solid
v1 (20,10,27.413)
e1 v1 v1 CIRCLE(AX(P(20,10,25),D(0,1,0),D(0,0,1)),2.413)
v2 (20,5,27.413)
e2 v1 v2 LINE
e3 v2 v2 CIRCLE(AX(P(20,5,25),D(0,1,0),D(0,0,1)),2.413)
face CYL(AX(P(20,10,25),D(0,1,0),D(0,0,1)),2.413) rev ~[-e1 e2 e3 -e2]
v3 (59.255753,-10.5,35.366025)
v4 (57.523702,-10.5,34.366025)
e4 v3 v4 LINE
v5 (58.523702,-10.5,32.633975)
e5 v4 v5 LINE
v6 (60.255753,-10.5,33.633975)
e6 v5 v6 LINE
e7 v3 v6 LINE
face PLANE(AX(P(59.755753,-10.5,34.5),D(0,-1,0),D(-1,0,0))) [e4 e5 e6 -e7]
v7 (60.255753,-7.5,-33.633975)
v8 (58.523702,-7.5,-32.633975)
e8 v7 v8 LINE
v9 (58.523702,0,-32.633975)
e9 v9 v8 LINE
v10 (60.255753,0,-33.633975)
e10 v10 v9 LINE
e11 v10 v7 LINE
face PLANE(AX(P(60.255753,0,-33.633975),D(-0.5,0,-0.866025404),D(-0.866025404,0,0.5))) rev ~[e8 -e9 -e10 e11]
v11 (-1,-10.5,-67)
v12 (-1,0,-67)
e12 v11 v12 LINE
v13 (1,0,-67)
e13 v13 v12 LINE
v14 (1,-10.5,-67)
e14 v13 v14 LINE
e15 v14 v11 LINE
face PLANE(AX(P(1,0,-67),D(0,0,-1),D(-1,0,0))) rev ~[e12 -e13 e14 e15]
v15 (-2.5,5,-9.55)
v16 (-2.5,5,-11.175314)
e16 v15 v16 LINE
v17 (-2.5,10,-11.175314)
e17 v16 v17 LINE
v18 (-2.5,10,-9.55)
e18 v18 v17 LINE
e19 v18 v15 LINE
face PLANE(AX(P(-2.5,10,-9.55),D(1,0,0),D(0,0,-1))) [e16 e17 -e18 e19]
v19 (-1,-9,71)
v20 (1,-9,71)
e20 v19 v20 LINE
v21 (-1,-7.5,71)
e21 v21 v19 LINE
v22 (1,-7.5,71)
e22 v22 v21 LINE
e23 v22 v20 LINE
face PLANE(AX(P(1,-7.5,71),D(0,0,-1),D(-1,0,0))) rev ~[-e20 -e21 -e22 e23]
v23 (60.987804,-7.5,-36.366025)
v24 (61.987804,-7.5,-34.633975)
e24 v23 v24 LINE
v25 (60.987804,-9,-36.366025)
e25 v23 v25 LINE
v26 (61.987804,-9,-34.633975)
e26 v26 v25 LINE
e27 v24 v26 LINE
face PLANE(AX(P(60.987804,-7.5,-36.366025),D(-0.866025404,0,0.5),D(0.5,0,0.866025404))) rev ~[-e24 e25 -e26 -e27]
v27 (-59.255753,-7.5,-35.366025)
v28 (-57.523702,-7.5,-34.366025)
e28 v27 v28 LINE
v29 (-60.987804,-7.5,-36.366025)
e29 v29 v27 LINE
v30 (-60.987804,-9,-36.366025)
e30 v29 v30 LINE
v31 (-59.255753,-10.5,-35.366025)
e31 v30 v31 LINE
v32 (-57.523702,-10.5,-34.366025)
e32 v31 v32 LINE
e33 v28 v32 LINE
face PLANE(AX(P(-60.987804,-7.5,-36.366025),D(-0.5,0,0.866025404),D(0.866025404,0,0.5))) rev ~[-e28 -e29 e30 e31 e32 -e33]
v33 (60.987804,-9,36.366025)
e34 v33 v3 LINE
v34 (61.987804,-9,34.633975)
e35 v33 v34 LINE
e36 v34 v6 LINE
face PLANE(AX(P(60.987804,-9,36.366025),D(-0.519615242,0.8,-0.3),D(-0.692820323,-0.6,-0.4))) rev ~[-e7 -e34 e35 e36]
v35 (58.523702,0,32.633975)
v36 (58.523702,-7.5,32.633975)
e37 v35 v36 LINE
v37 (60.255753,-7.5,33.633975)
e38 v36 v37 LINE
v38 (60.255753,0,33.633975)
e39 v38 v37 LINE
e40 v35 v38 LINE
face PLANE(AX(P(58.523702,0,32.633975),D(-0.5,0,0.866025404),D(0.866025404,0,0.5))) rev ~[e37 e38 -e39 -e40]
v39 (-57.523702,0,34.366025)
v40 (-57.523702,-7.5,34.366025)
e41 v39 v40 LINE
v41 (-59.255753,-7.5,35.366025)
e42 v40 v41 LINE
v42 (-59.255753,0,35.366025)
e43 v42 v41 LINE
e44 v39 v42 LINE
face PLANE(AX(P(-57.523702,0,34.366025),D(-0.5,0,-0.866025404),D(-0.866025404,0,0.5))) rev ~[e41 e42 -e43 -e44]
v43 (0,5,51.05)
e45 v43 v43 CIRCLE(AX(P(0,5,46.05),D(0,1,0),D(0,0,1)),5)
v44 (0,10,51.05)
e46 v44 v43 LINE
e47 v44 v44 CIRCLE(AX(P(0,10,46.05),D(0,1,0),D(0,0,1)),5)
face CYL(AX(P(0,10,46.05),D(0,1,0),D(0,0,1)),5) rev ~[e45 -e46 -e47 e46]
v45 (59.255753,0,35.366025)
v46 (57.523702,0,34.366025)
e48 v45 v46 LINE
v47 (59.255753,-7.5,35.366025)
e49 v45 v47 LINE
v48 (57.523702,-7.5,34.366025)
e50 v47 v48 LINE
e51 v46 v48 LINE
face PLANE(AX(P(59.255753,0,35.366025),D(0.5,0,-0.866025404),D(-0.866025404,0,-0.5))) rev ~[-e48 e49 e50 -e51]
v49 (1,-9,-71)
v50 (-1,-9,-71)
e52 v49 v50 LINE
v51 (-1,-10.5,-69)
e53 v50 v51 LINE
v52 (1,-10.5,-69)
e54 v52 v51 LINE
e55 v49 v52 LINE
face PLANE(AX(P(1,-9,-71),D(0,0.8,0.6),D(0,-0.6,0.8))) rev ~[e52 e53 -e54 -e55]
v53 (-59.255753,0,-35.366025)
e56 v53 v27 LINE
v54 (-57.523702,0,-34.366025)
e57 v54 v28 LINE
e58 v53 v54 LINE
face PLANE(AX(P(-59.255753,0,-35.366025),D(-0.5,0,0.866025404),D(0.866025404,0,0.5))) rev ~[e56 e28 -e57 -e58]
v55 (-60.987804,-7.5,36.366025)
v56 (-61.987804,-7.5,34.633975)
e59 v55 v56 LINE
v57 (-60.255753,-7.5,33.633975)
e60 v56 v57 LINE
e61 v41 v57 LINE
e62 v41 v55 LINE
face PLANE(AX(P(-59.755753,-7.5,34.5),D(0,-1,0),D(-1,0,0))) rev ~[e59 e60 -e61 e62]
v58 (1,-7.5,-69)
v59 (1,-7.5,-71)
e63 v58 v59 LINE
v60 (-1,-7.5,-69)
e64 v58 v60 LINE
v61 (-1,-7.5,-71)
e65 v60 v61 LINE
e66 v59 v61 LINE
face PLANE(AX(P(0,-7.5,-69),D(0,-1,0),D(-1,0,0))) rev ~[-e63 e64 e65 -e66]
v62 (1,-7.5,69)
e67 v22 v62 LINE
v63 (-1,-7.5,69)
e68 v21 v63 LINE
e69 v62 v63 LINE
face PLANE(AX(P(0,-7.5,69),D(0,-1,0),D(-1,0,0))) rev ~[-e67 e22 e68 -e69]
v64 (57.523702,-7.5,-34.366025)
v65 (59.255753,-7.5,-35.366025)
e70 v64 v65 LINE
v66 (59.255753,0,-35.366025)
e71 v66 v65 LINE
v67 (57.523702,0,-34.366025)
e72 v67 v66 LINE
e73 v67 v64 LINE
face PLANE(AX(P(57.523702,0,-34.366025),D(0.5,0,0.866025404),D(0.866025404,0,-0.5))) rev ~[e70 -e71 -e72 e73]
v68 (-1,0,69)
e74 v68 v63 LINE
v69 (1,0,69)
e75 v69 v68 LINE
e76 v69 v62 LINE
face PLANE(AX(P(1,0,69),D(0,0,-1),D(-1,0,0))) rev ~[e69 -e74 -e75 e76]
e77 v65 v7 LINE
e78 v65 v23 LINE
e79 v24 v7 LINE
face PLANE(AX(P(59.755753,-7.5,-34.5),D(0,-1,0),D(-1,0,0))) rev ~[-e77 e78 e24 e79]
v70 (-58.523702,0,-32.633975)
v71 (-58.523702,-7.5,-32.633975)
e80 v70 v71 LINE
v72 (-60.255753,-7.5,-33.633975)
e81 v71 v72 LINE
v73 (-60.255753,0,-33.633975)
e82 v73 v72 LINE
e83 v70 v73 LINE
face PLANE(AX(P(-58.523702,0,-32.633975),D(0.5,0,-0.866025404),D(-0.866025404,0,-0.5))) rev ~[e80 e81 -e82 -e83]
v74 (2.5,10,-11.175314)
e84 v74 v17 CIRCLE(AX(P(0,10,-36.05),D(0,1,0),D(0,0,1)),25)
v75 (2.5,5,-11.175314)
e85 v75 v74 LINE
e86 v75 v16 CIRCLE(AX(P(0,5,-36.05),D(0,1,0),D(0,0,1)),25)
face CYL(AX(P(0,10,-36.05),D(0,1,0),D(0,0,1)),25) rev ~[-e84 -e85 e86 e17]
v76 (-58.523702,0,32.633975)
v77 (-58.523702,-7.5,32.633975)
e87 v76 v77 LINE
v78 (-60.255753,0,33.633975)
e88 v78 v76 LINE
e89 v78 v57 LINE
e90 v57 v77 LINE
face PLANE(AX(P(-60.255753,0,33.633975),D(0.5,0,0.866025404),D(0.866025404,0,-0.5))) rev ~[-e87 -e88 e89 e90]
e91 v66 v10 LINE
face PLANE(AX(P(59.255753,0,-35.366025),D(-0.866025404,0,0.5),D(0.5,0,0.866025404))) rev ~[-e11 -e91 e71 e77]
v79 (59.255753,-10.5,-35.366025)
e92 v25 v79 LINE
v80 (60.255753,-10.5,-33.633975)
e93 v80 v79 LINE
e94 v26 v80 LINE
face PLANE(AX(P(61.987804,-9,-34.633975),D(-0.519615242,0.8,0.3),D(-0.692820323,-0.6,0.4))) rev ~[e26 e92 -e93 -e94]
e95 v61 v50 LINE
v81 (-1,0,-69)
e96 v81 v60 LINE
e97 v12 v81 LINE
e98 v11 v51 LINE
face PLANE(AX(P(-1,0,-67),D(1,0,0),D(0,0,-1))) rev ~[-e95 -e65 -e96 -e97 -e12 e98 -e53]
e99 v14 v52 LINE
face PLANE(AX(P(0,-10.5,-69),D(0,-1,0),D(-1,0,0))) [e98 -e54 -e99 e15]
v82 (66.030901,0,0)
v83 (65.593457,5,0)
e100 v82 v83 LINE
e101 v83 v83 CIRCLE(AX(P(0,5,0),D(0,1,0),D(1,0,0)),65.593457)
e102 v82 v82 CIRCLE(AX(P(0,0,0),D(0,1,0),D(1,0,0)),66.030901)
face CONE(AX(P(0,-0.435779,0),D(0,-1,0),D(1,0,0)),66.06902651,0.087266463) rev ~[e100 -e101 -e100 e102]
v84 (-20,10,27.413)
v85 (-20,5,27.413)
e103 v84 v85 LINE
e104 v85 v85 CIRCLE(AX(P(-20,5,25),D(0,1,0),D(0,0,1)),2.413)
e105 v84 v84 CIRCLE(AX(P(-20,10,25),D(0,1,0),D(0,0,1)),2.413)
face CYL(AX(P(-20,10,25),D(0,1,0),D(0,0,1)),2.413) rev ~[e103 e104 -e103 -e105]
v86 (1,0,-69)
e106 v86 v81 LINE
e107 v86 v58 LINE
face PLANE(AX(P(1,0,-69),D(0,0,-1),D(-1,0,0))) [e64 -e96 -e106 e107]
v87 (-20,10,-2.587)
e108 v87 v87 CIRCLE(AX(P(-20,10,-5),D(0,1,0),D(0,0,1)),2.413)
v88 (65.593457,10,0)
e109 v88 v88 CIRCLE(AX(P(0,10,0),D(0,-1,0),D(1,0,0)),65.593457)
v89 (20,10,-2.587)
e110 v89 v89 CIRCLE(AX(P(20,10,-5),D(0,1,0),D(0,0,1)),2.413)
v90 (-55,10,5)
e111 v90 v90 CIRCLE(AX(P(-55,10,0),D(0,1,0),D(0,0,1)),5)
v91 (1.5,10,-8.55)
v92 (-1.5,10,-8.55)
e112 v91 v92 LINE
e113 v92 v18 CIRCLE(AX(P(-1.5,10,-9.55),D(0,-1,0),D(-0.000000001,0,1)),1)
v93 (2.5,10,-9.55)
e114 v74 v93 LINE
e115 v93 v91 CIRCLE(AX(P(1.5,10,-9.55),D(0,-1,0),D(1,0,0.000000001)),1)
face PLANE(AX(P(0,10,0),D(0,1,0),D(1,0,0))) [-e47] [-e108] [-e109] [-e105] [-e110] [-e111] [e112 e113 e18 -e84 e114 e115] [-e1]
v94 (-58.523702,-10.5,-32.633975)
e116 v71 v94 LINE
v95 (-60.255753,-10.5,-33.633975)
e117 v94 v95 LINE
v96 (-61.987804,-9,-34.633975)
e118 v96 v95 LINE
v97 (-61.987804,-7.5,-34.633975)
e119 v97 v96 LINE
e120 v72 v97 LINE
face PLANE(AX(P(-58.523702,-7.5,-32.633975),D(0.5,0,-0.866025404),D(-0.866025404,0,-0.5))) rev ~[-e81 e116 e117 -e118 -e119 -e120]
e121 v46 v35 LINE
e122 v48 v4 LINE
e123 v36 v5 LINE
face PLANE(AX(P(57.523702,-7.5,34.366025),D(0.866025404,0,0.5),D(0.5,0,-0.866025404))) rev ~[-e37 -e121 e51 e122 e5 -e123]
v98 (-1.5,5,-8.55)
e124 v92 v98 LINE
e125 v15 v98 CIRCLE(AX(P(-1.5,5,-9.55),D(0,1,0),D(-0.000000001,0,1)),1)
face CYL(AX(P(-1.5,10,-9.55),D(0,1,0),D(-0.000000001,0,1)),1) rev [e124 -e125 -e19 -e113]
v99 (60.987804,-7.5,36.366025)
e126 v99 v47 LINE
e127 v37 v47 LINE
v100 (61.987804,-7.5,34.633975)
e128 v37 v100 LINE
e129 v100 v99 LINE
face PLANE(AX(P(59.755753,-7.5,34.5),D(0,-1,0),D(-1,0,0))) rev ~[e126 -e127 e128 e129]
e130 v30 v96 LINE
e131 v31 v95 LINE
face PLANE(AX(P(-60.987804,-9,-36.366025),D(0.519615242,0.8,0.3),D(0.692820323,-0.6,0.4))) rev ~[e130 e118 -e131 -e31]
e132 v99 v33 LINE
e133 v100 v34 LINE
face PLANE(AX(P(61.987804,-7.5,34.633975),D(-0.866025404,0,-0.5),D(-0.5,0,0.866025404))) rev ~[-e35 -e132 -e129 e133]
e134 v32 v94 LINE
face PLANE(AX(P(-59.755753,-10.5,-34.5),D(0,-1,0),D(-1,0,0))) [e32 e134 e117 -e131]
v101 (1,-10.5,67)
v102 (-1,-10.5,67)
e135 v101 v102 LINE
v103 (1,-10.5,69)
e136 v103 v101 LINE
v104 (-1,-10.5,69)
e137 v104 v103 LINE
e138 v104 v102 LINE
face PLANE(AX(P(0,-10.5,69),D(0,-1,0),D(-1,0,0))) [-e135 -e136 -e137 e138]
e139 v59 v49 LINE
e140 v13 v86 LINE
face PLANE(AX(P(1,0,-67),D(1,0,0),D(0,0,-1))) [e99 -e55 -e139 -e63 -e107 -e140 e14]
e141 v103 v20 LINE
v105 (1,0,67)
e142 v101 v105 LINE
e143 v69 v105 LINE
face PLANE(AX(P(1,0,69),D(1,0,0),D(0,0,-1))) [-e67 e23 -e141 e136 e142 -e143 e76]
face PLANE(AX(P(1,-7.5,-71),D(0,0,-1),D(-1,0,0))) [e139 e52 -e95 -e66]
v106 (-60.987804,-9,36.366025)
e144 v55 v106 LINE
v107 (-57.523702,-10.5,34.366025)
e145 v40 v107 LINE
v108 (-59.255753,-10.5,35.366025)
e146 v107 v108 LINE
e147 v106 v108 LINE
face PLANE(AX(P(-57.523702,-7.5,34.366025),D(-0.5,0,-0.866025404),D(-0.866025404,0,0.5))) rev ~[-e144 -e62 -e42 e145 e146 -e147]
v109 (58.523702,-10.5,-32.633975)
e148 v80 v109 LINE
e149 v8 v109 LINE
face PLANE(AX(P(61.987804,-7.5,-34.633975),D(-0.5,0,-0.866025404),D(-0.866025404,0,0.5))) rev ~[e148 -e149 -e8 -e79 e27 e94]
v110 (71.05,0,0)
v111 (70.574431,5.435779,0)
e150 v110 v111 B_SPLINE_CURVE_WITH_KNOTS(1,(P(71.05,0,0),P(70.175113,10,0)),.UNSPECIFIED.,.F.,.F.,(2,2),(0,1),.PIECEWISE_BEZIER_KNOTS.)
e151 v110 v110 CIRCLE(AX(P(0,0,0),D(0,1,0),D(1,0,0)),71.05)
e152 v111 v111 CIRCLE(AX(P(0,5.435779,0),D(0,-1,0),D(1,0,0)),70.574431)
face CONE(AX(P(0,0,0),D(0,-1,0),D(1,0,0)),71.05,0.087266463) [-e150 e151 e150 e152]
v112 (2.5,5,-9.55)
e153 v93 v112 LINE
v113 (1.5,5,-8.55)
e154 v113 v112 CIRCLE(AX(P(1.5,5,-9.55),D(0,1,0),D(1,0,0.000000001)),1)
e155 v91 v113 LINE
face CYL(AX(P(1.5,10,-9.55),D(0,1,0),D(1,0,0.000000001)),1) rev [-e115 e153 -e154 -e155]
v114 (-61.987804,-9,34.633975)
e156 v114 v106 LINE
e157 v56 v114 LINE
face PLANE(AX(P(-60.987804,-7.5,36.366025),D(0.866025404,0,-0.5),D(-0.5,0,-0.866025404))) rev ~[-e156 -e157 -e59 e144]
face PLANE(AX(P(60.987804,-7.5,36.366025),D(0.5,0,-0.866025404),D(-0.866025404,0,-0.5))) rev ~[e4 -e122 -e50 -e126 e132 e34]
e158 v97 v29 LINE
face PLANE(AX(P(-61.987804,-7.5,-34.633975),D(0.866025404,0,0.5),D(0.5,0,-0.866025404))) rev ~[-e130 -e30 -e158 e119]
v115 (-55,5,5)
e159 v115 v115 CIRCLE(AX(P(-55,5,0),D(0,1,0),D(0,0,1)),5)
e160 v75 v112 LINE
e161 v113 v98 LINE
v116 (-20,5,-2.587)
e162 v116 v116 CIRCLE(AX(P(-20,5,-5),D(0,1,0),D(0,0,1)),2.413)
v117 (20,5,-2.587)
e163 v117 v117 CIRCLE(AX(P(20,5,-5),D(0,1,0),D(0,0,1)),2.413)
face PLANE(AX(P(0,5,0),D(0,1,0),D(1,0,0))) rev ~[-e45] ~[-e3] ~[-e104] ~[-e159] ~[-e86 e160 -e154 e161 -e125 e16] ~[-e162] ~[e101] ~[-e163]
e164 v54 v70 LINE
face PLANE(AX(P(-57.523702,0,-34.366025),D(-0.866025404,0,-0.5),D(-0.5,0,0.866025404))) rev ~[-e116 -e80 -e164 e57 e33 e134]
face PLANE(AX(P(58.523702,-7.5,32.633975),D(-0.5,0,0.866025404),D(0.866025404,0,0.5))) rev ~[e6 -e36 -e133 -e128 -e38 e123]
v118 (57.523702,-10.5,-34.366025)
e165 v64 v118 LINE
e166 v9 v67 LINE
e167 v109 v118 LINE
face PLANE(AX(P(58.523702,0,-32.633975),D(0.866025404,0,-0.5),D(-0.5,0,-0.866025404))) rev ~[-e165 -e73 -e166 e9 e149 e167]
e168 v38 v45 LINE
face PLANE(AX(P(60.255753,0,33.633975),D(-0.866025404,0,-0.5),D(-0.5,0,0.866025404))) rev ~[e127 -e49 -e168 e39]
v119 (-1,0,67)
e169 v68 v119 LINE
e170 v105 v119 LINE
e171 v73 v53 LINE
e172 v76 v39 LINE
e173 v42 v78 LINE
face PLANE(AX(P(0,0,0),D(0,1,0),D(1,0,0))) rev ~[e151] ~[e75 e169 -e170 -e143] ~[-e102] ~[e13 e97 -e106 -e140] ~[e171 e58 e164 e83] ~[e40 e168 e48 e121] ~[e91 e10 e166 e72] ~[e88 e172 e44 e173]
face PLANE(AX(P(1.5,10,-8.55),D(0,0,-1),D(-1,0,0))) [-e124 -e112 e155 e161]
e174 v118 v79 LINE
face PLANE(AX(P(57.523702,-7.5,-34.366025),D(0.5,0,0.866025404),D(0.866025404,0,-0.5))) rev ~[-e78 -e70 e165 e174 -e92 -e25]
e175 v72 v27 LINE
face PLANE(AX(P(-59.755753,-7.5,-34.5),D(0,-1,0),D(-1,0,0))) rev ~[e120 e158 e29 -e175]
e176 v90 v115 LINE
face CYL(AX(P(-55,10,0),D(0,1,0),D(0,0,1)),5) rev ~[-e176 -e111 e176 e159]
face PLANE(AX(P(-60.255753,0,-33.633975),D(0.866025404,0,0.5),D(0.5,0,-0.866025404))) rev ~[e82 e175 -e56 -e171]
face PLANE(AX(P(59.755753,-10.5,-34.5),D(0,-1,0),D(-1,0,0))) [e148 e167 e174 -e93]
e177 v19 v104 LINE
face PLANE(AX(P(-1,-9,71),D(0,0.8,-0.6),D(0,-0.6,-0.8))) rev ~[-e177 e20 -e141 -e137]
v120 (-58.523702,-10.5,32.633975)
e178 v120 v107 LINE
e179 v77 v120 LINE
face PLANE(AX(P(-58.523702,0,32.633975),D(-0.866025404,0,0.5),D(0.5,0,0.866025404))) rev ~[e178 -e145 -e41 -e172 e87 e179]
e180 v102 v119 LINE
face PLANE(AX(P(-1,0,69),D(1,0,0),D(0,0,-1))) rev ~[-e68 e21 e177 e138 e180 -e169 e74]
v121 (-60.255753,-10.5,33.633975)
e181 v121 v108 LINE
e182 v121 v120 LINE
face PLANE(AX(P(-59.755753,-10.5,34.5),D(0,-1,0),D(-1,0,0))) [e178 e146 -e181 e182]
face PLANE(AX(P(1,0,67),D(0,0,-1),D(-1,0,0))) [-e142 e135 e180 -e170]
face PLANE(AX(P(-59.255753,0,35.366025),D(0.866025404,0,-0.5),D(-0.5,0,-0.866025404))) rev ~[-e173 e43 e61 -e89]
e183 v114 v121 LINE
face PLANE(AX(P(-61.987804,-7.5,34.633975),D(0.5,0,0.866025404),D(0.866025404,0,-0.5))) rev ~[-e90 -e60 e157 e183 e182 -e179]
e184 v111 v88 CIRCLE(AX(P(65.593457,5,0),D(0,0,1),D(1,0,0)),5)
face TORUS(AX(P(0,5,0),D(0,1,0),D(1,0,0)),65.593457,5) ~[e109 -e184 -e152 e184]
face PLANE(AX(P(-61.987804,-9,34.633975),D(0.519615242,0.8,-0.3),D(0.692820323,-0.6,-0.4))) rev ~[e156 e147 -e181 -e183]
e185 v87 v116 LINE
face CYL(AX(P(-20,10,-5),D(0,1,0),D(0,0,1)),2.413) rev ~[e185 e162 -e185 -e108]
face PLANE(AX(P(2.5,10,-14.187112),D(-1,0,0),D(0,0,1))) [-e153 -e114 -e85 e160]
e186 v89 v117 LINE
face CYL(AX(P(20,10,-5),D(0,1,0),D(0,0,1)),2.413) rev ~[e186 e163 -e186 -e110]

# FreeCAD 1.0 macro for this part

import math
import FreeCAD as App
import Part
import Sketcher

V = App.Vector
Q = App.Units.Quantity


def edges_at(feature, points):
    """Names of the edges that pass closest to the given points."""
    edges = feature.Shape.Edges
    near = lambda p: min(range(len(edges)), key=lambda i: edges[i].distToShape(Part.Vertex(*p))[0])
    return sorted({f"Edge{near(p) + 1}" for p in points})


def faces_at(feature, points):
    """Names of the faces that lie closest to the given points."""
    faces = feature.Shape.Faces
    near = lambda p: min(range(len(faces)), key=lambda i: faces[i].distToShape(Part.Vertex(*p))[0])
    return sorted({f"Face{near(p) + 1}" for p in points})

doc = App.newDocument("Part")
params = doc.addObject("Spreadsheet::Sheet", "Params")
for row, (alias, value) in enumerate([
    ("sketch1_diameter", "142.1 mm"),
    ("pad1_length", "10 mm"),
    ("pad1_taper", "-5 deg"),
    ("thickness_wall", "5 mm"),
    ("sketch2_diameter", "10 mm"),
    ("sketch2_diameter2", "50 mm"),
    ("sketch3_radius", "1 mm"),
    ("sketch3_width", "5 mm"),
    ("pocket2_length", "10 mm"),
    ("fillet_radius", "5 mm"),
    ("sketch4_diameter", "10 mm"),
    ("sketch5_width", "2 mm"),
    ("sketch5_length", "2 mm"),
    ("pad2_length", "7.5 mm"),
    ("sketch6_width", "2 mm"),
    ("sketch6_height", "4 mm"),
    ("sketch6_length", "4 mm"),
    ("sketch6_length2", "2 mm"),
    ("pad3_length", "3 mm"),
    ("sketch7_height", "2 mm"),
    ("sketch7_width", "1.5 mm"),
    ("pocket4_length", "3 mm"),
    ("sketch8_width", "2 mm"),
    ("sketch8_height", "1.5 mm"),
    ("pocket5_length", "3 mm"),
    ("sketch9_width", "2 mm"),
    ("sketch9_height", "1.5 mm"),
    ("pocket6_length", "3 mm"),
    ("sketch10_height", "2 mm"),
    ("sketch10_width", "1.5 mm"),
    ("pocket7_length", "3 mm"),
    ("sketch11_width", "2 mm"),
    ("sketch11_height", "1.5 mm"),
    ("pocket8_length", "3 mm"),
    ("sketch12_width", "2 mm"),
    ("sketch12_height", "1.5 mm"),
    ("pocket9_length", "3 mm"),
], start=1):
    params.set(f"A{row}", alias)
    params.set(f"B{row}", "=" + value)
    params.setAlias(f"B{row}", alias)

body = doc.addObject("PartDesign::Body", "Body")

# Sketch on XZ plane
sketch1 = doc.addObject("Sketcher::SketchObject", "Sketch")
body.addObject(sketch1)
sketch1.AttachmentSupport = (doc.XZ_Plane, [""])
sketch1.MapMode = "FlatFace"
sketch1.addGeometry(Part.Circle(V(0, 0, 0), V(0, 0, 1), 71.05), False)
sketch1.addConstraint([
    Sketcher.Constraint("Coincident", 0, 3, -1, 1),
    Sketcher.Constraint("Diameter", 0, Q("142.1 mm")),
])
sketch1.setExpression("Constraints[1]", "Params.sketch1_diameter")
pad1 = doc.addObject("PartDesign::Pad", "Pad")
body.addObject(pad1)
pad1.Profile = sketch1
pad1.setExpression("Length", "Params.pad1_length")
pad1.Reversed = True
pad1.setExpression("TaperAngle", "Params.pad1_taper")
doc.recompute()

thickness = doc.addObject("PartDesign::Thickness", "Thickness")
body.addObject(thickness)
thickness.Base = (pad1, faces_at(pad1, [(0, 0, 0)]))
thickness.setExpression("Value", "Params.thickness_wall")
thickness.Reversed = True
thickness.Join = "Intersection"

# Sketch on XZ plane
sketch2 = doc.addObject("Sketcher::SketchObject", "Sketch001")
body.addObject(sketch2)
sketch2.AttachmentSupport = (doc.XZ_Plane, [""])
sketch2.MapMode = "FlatFace"
sketch2.AttachmentOffset = App.Placement(V(0, 0, -10), App.Rotation())
sketch2.addGeometry([
    Part.Circle(V(0, 46.05, 0), V(0, 0, 1), 5),  # 0
    Part.Circle(V(0, -36.05, 0), V(0, 0, 1), 25),  # 1
    Part.Circle(V(20, -5, 0), V(0, 0, 1), 2.413),  # 2
    Part.Circle(V(20, 25, 0), V(0, 0, 1), 2.413),  # 3
    Part.Circle(V(-20, 25, 0), V(0, 0, 1), 2.413),  # 4
    Part.Circle(V(-20, -5, 0), V(0, 0, 1), 2.413),  # 5
], False)
sketch2.addConstraint([
    Sketcher.Constraint("Equal", 2, 3),
    Sketcher.Constraint("Equal", 3, 4),
    Sketcher.Constraint("Equal", 4, 5),
    Sketcher.Constraint("Symmetric", 3, 3, 4, 3, -2),
    Sketcher.Constraint("Symmetric", 2, 3, 5, 3, -2),
    Sketcher.Constraint("PointOnObject", 0, 3, -2),
    Sketcher.Constraint("PointOnObject", 1, 3, -2),
    Sketcher.Constraint("Vertical", 2, 3, 3, 3),
    Sketcher.Constraint("Diameter", 0, Q("10 mm")),
    Sketcher.Constraint("Diameter", 1, Q("50 mm")),
    Sketcher.Constraint("Diameter", 2, Q("4.826 mm")),
    Sketcher.Constraint("DistanceX", -1, 1, 2, 3, Q("20 mm")),
    Sketcher.Constraint("DistanceY", 2, 3, -1, 1, Q("5 mm")),
    Sketcher.Constraint("DistanceY", -1, 1, 3, 3, Q("25 mm")),
    Sketcher.Constraint("DistanceY", 1, 3, 0, 3, Q("82.1 mm")),
    Sketcher.Constraint("DistanceY", -1, 1, 0, 3, Q("46.05 mm")),
])
sketch2.setExpression("Constraints[8]", "Params.sketch2_diameter")
sketch2.setExpression("Constraints[9]", "Params.sketch2_diameter2")
pocket1 = doc.addObject("PartDesign::Pocket", "Pocket")
body.addObject(pocket1)
pocket1.Profile = sketch2
pocket1.Type = "ThroughAll"
pocket1.Reversed = True

# Sketch on XZ plane
sketch3 = doc.addObject("Sketcher::SketchObject", "Sketch002")
body.addObject(sketch3)
sketch3.AttachmentSupport = (doc.XZ_Plane, [""])
sketch3.MapMode = "FlatFace"
sketch3.AttachmentOffset = App.Placement(V(0, 0, -10), App.Rotation())
sketch3.addGeometry([
    Part.LineSegment(V(2.5, -14.187112, 0), V(-2.5, -14.187112, 0)),  # 0
    Part.LineSegment(V(-2.5, -14.187112, 0), V(-2.5, -9.55, 0)),  # 1
    Part.ArcOfCircle(Part.Circle(V(-1.5, -9.55, 0), V(0, 0, 1), 1), math.radians(90), math.radians(180)),  # 2
    Part.LineSegment(V(-1.5, -8.55, 0), V(1.5, -8.55, 0)),  # 3
    Part.ArcOfCircle(Part.Circle(V(1.5, -9.55, 0), V(0, 0, 1), 1), math.radians(0), math.radians(90)),  # 4
    Part.LineSegment(V(2.5, -9.55, 0), V(2.5, -14.187112, 0)),  # 5
], False)
sketch3.addConstraint([
    Sketcher.Constraint("Coincident", 0, 2, 1, 1),
    Sketcher.Constraint("Tangent", 1, 2, 2, 2),
    Sketcher.Constraint("Tangent", 2, 1, 3, 1),
    Sketcher.Constraint("Tangent", 3, 2, 4, 2),
    Sketcher.Constraint("Tangent", 4, 1, 5, 1),
    Sketcher.Constraint("Coincident", 5, 2, 0, 1),
    Sketcher.Constraint("Horizontal", 0),
    Sketcher.Constraint("Vertical", 1),
    Sketcher.Constraint("Horizontal", 3),
    Sketcher.Constraint("Vertical", 5),
    Sketcher.Constraint("Equal", 2, 4),
    Sketcher.Constraint("Radius", 2, Q("1 mm")),
    Sketcher.Constraint("DistanceX", 0, 2, 0, 1, Q("5 mm")),
    Sketcher.Constraint("DistanceX", 2, 3, -1, 1, Q("1.5 mm")),
    Sketcher.Constraint("DistanceY", 2, 3, -1, 1, Q("9.55 mm")),
    Sketcher.Constraint("DistanceY", 1, 1, 1, 2, Q("4.637112 mm")),
])
sketch3.setExpression("Constraints[11]", "Params.sketch3_radius")
sketch3.setExpression("Constraints[12]", "Params.sketch3_width")
pocket2 = doc.addObject("PartDesign::Pocket", "Pocket001")
body.addObject(pocket2)
pocket2.Profile = sketch3
pocket2.setExpression("Length", "Params.pocket2_length")
pocket2.Reversed = True
doc.recompute()

fillet = doc.addObject("PartDesign::Fillet", "Fillet")
body.addObject(fillet)
fillet.Base = (pocket2, edges_at(pocket2, [(-70.175, 10, 0)]))
fillet.setExpression("Radius", "Params.fillet_radius")

# Sketch on XZ plane
sketch4 = doc.addObject("Sketcher::SketchObject", "Sketch003")
body.addObject(sketch4)
sketch4.AttachmentSupport = (doc.XZ_Plane, [""])
sketch4.MapMode = "FlatFace"
sketch4.AttachmentOffset = App.Placement(V(0, 0, -10), App.Rotation())
sketch4.addGeometry(Part.Circle(V(-55, 0, 0), V(0, 0, 1), 5), False)
sketch4.addConstraint([
    Sketcher.Constraint("PointOnObject", 0, 3, -1),
    Sketcher.Constraint("Diameter", 0, Q("10 mm")),
    Sketcher.Constraint("DistanceX", 0, 3, -1, 1, Q("55 mm")),
])
sketch4.setExpression("Constraints[1]", "Params.sketch4_diameter")
pocket3 = doc.addObject("PartDesign::Pocket", "Pocket002")
body.addObject(pocket3)
pocket3.Profile = sketch4
pocket3.Type = "ThroughAll"
pocket3.Reversed = True

# Sketch on XZ plane
sketch5 = doc.addObject("Sketcher::SketchObject", "Sketch004")
body.addObject(sketch5)
sketch5.AttachmentSupport = (doc.XZ_Plane, [""])
sketch5.MapMode = "FlatFace"
sketch5.addGeometry([
    Part.LineSegment(V(-58.523702, -32.633975, 0), V(-60.255753, -33.633975, 0)),  # 0
    Part.LineSegment(V(-60.255753, -33.633975, 0), V(-59.255753, -35.366025, 0)),  # 1
    Part.LineSegment(V(-59.255753, -35.366025, 0), V(-57.523702, -34.366025, 0)),  # 2
    Part.LineSegment(V(-57.523702, -34.366025, 0), V(-58.523702, -32.633975, 0)),  # 3
    Part.LineSegment(V(1, -69, 0), V(1, -67, 0)),  # 4
    Part.LineSegment(V(1, -67, 0), V(-1, -67, 0)),  # 5
    Part.LineSegment(V(-1, -67, 0), V(-1, -69, 0)),  # 6
    Part.LineSegment(V(-1, -69, 0), V(1, -69, 0)),  # 7
    Part.LineSegment(V(-57.523702, 34.366025, 0), V(-59.255753, 35.366025, 0)),  # 8
    Part.LineSegment(V(-59.255753, 35.366025, 0), V(-60.255753, 33.633975, 0)),  # 9
    Part.LineSegment(V(-60.255753, 33.633975, 0), V(-58.523702, 32.633975, 0)),  # 10
    Part.LineSegment(V(-58.523702, 32.633975, 0), V(-57.523702, 34.366025, 0)),  # 11
    Part.LineSegment(V(1, 67, 0), V(1, 69, 0)),  # 12
    Part.LineSegment(V(1, 69, 0), V(-1, 69, 0)),  # 13
    Part.LineSegment(V(-1, 69, 0), V(-1, 67, 0)),  # 14
    Part.LineSegment(V(-1, 67, 0), V(1, 67, 0)),  # 15
    Part.LineSegment(V(58.523702, 32.633975, 0), V(60.255753, 33.633975, 0)),  # 16
    Part.LineSegment(V(60.255753, 33.633975, 0), V(59.255753, 35.366025, 0)),  # 17
    Part.LineSegment(V(59.255753, 35.366025, 0), V(57.523702, 34.366025, 0)),  # 18
    Part.LineSegment(V(57.523702, 34.366025, 0), V(58.523702, 32.633975, 0)),  # 19
    Part.LineSegment(V(57.523702, -34.366025, 0), V(59.255753, -35.366025, 0)),  # 20
    Part.LineSegment(V(59.255753, -35.366025, 0), V(60.255753, -33.633975, 0)),  # 21
    Part.LineSegment(V(60.255753, -33.633975, 0), V(58.523702, -32.633975, 0)),  # 22
    Part.LineSegment(V(58.523702, -32.633975, 0), V(57.523702, -34.366025, 0)),  # 23
], False)
sketch5.addConstraint([
    Sketcher.Constraint("Coincident", 0, 2, 1, 1),
    Sketcher.Constraint("Coincident", 1, 2, 2, 1),
    Sketcher.Constraint("Coincident", 2, 2, 3, 1),
    Sketcher.Constraint("Coincident", 3, 2, 0, 1),
    Sketcher.Constraint("Coincident", 4, 2, 5, 1),
    Sketcher.Constraint("Coincident", 5, 2, 6, 1),
    Sketcher.Constraint("Coincident", 6, 2, 7, 1),
    Sketcher.Constraint("Coincident", 7, 2, 4, 1),
    Sketcher.Constraint("Coincident", 8, 2, 9, 1),
    Sketcher.Constraint("Coincident", 9, 2, 10, 1),
    Sketcher.Constraint("Coincident", 10, 2, 11, 1),
    Sketcher.Constraint("Coincident", 11, 2, 8, 1),
    Sketcher.Constraint("Coincident", 12, 2, 13, 1),
    Sketcher.Constraint("Coincident", 13, 2, 14, 1),
    Sketcher.Constraint("Coincident", 14, 2, 15, 1),
    Sketcher.Constraint("Coincident", 15, 2, 12, 1),
    Sketcher.Constraint("Coincident", 16, 2, 17, 1),
    Sketcher.Constraint("Coincident", 17, 2, 18, 1),
    Sketcher.Constraint("Coincident", 18, 2, 19, 1),
    Sketcher.Constraint("Coincident", 19, 2, 16, 1),
    Sketcher.Constraint("Coincident", 20, 2, 21, 1),
    Sketcher.Constraint("Coincident", 21, 2, 22, 1),
    Sketcher.Constraint("Coincident", 22, 2, 23, 1),
    Sketcher.Constraint("Coincident", 23, 2, 20, 1),
    Sketcher.Constraint("Vertical", 4),
    Sketcher.Constraint("Horizontal", 5),
    Sketcher.Constraint("Vertical", 6),
    Sketcher.Constraint("Horizontal", 7),
    Sketcher.Constraint("Vertical", 12),
    Sketcher.Constraint("Horizontal", 13),
    Sketcher.Constraint("Vertical", 14),
    Sketcher.Constraint("Horizontal", 15),
    Sketcher.Constraint("Symmetric", 6, 2, 12, 2, -1, 1),
    Sketcher.Constraint("Symmetric", 4, 2, 14, 2, -1, 1),
    Sketcher.Constraint("Symmetric", 0, 2, 16, 2, -1, 1),
    Sketcher.Constraint("Symmetric", 1, 2, 17, 2, -1, 1),
    Sketcher.Constraint("Symmetric", 2, 2, 18, 2, -1, 1),
    Sketcher.Constraint("Symmetric", 3, 2, 19, 2, -1, 1),
    Sketcher.Constraint("Symmetric", 8, 2, 20, 2, -1, 1),
    Sketcher.Constraint("Symmetric", 9, 2, 21, 2, -1, 1),
    Sketcher.Constraint("Symmetric", 10, 2, 22, 2, -1, 1),
    Sketcher.Constraint("Symmetric", 11, 2, 23, 2, -1, 1),
    Sketcher.Constraint("Symmetric", 9, 2, 16, 2, -2),
    Sketcher.Constraint("Symmetric", 8, 2, 17, 2, -2),
    Sketcher.Constraint("Symmetric", 11, 2, 18, 2, -2),
    Sketcher.Constraint("Symmetric", 10, 2, 19, 2, -2),
    Sketcher.Constraint("Perpendicular", 0, 1),
    Sketcher.Constraint("Perpendicular", 1, 2),
    Sketcher.Constraint("Perpendicular", 2, 3),
    Sketcher.Constraint("Vertical", 7, 2, 12, 2),
    Sketcher.Constraint("Equal", 15, 4),
    Sketcher.Constraint("Equal", 0, 1),
    Sketcher.Constraint("DistanceX", 5, 2, 5, 1, Q("2 mm")),
    Sketcher.Constraint("Angle", 0, Q("-150 deg")),
    Sketcher.Constraint("Distance", 0, Q("2 mm")),
    Sketcher.Constraint("DistanceY", 4, 2, -1, 1, Q("67 mm")),
    Sketcher.Constraint("DistanceY", 3, 2, 8, 2, Q("68 mm")),
    Sketcher.Constraint("DistanceX", 0, 2, -1, 1, Q("60.255753 mm")),
])
sketch5.setExpression("Constraints[52]", "Params.sketch5_width")
sketch5.setExpression("Constraints[54]", "Params.sketch5_length")
pad2 = doc.addObject("PartDesign::Pad", "Pad001")
body.addObject(pad2)
pad2.Profile = sketch5
pad2.setExpression("Length", "Params.pad2_length")

# Sketch on XZ plane
sketch6 = doc.addObject("Sketcher::SketchObject", "Sketch005")
body.addObject(sketch6)
sketch6.AttachmentSupport = (doc.XZ_Plane, [""])
sketch6.MapMode = "FlatFace"
sketch6.AttachmentOffset = App.Placement(V(0, 0, 7.5), App.Rotation())
sketch6.addGeometry([
    Part.LineSegment(V(58.523702, 32.633975, 0), V(61.987804, 34.633975, 0)),  # 0
    Part.LineSegment(V(61.987804, 34.633975, 0), V(60.987804, 36.366025, 0)),  # 1
    Part.LineSegment(V(60.987804, 36.366025, 0), V(57.523702, 34.366025, 0)),  # 2
    Part.LineSegment(V(57.523702, 34.366025, 0), V(58.523702, 32.633975, 0)),  # 3
    Part.LineSegment(V(1, 67, 0), V(1, 71, 0)),  # 4
    Part.LineSegment(V(1, 71, 0), V(-1, 71, 0)),  # 5
    Part.LineSegment(V(-1, 71, 0), V(-1, 67, 0)),  # 6
    Part.LineSegment(V(-1, 67, 0), V(1, 67, 0)),  # 7
    Part.LineSegment(V(57.523702, -34.366025, 0), V(60.987804, -36.366025, 0)),  # 8
    Part.LineSegment(V(60.987804, -36.366025, 0), V(61.987804, -34.633975, 0)),  # 9
    Part.LineSegment(V(61.987804, -34.633975, 0), V(58.523702, -32.633975, 0)),  # 10
    Part.LineSegment(V(58.523702, -32.633975, 0), V(57.523702, -34.366025, 0)),  # 11
    Part.LineSegment(V(1, -71, 0), V(1, -67, 0)),  # 12
    Part.LineSegment(V(1, -67, 0), V(-1, -67, 0)),  # 13
    Part.LineSegment(V(-1, -67, 0), V(-1, -71, 0)),  # 14
    Part.LineSegment(V(-1, -71, 0), V(1, -71, 0)),  # 15
    Part.LineSegment(V(-58.523702, -32.633975, 0), V(-61.987804, -34.633975, 0)),  # 16
    Part.LineSegment(V(-61.987804, -34.633975, 0), V(-60.987804, -36.366025, 0)),  # 17
    Part.LineSegment(V(-60.987804, -36.366025, 0), V(-57.523702, -34.366025, 0)),  # 18
    Part.LineSegment(V(-57.523702, -34.366025, 0), V(-58.523702, -32.633975, 0)),  # 19
    Part.LineSegment(V(-57.523702, 34.366025, 0), V(-60.987804, 36.366025, 0)),  # 20
    Part.LineSegment(V(-60.987804, 36.366025, 0), V(-61.987804, 34.633975, 0)),  # 21
    Part.LineSegment(V(-61.987804, 34.633975, 0), V(-58.523702, 32.633975, 0)),  # 22
    Part.LineSegment(V(-58.523702, 32.633975, 0), V(-57.523702, 34.366025, 0)),  # 23
], False)
sketch6.addConstraint([
    Sketcher.Constraint("Coincident", 0, 2, 1, 1),
    Sketcher.Constraint("Coincident", 1, 2, 2, 1),
    Sketcher.Constraint("Coincident", 2, 2, 3, 1),
    Sketcher.Constraint("Coincident", 3, 2, 0, 1),
    Sketcher.Constraint("Coincident", 4, 2, 5, 1),
    Sketcher.Constraint("Coincident", 5, 2, 6, 1),
    Sketcher.Constraint("Coincident", 6, 2, 7, 1),
    Sketcher.Constraint("Coincident", 7, 2, 4, 1),
    Sketcher.Constraint("Coincident", 8, 2, 9, 1),
    Sketcher.Constraint("Coincident", 9, 2, 10, 1),
    Sketcher.Constraint("Coincident", 10, 2, 11, 1),
    Sketcher.Constraint("Coincident", 11, 2, 8, 1),
    Sketcher.Constraint("Coincident", 12, 2, 13, 1),
    Sketcher.Constraint("Coincident", 13, 2, 14, 1),
    Sketcher.Constraint("Coincident", 14, 2, 15, 1),
    Sketcher.Constraint("Coincident", 15, 2, 12, 1),
    Sketcher.Constraint("Coincident", 16, 2, 17, 1),
    Sketcher.Constraint("Coincident", 17, 2, 18, 1),
    Sketcher.Constraint("Coincident", 18, 2, 19, 1),
    Sketcher.Constraint("Coincident", 19, 2, 16, 1),
    Sketcher.Constraint("Coincident", 20, 2, 21, 1),
    Sketcher.Constraint("Coincident", 21, 2, 22, 1),
    Sketcher.Constraint("Coincident", 22, 2, 23, 1),
    Sketcher.Constraint("Coincident", 23, 2, 20, 1),
    Sketcher.Constraint("Vertical", 4),
    Sketcher.Constraint("Horizontal", 5),
    Sketcher.Constraint("Vertical", 6),
    Sketcher.Constraint("Horizontal", 7),
    Sketcher.Constraint("Vertical", 12),
    Sketcher.Constraint("Horizontal", 13),
    Sketcher.Constraint("Vertical", 14),
    Sketcher.Constraint("Horizontal", 15),
    Sketcher.Constraint("Symmetric", 6, 2, 12, 2, -1, 1),
    Sketcher.Constraint("Symmetric", 4, 2, 14, 2, -1, 1),
    Sketcher.Constraint("Symmetric", 0, 2, 16, 2, -1, 1),
    Sketcher.Constraint("Symmetric", 1, 2, 17, 2, -1, 1),
    Sketcher.Constraint("Symmetric", 2, 2, 18, 2, -1, 1),
    Sketcher.Constraint("Symmetric", 3, 2, 19, 2, -1, 1),
    Sketcher.Constraint("Symmetric", 8, 2, 20, 2, -1, 1),
    Sketcher.Constraint("Symmetric", 9, 2, 21, 2, -1, 1),
    Sketcher.Constraint("Symmetric", 10, 2, 22, 2, -1, 1),
    Sketcher.Constraint("Symmetric", 11, 2, 23, 2, -1, 1),
    Sketcher.Constraint("Symmetric", 9, 2, 16, 2, -2),
    Sketcher.Constraint("Symmetric", 8, 2, 17, 2, -2),
    Sketcher.Constraint("Symmetric", 11, 2, 18, 2, -2),
    Sketcher.Constraint("Symmetric", 10, 2, 19, 2, -2),
    Sketcher.Constraint("Perpendicular", 0, 1),
    Sketcher.Constraint("Perpendicular", 1, 2),
    Sketcher.Constraint("Perpendicular", 2, 3),
    Sketcher.Constraint("Vertical", 7, 2, 12, 2),
    Sketcher.Constraint("DistanceX", 5, 2, 5, 1, Q("2 mm")),
    Sketcher.Constraint("DistanceY", 4, 1, 4, 2, Q("4 mm")),
    Sketcher.Constraint("Angle", 0, Q("30 deg")),
    Sketcher.Constraint("Distance", 0, Q("4 mm")),
    Sketcher.Constraint("Distance", 1, Q("2 mm")),
    Sketcher.Constraint("DistanceY", -1, 1, 4, 2, Q("71 mm")),
    Sketcher.Constraint("DistanceY", 8, 2, 3, 2, Q("69 mm")),
    Sketcher.Constraint("DistanceX", -1, 1, 0, 2, Q("61.987804 mm")),
])
sketch6.setExpression("Constraints[50]", "Params.sketch6_width")
sketch6.setExpression("Constraints[51]", "Params.sketch6_height")
sketch6.setExpression("Constraints[53]", "Params.sketch6_length")
sketch6.setExpression("Constraints[54]", "Params.sketch6_length2")
pad3 = doc.addObject("PartDesign::Pad", "Pad002")
body.addObject(pad3)
pad3.Profile = sketch6
pad3.setExpression("Length", "Params.pad3_length")

# Sketch on YZ plane
sketch7 = doc.addObject("Sketcher::SketchObject", "Sketch006")
body.addObject(sketch7)
sketch7.AttachmentSupport = (doc.YZ_Plane, [""])
sketch7.MapMode = "FlatFace"
sketch7.AttachmentOffset = App.Placement(V(0, 0, 1), App.Rotation())
sketch7.addGeometry([
    Part.LineSegment(V(-9, -71, 0), V(-10.5, -69, 0)),
    Part.LineSegment(V(-10.5, -69, 0), V(-10.5, -71, 0)),
    Part.LineSegment(V(-10.5, -71, 0), V(-9, -71, 0)),
], False)
sketch7.addConstraint([
    Sketcher.Constraint("Coincident", 0, 2, 1, 1),
    Sketcher.Constraint("Coincident", 1, 2, 2, 1),
    Sketcher.Constraint("Coincident", 2, 2, 0, 1),
    Sketcher.Constraint("Vertical", 1),
    Sketcher.Constraint("Horizontal", 2),
    Sketcher.Constraint("DistanceY", 1, 2, 1, 1, Q("2 mm")),
    Sketcher.Constraint("DistanceX", 2, 1, 2, 2, Q("1.5 mm")),
    Sketcher.Constraint("DistanceY", 0, 2, -1, 1, Q("69 mm")),
    Sketcher.Constraint("DistanceX", 2, 2, -1, 1, Q("9 mm")),
])
sketch7.setExpression("Constraints[5]", "Params.sketch7_height")
sketch7.setExpression("Constraints[6]", "Params.sketch7_width")
pocket4 = doc.addObject("PartDesign::Pocket", "Pocket003")
body.addObject(pocket4)
pocket4.Profile = sketch7
pocket4.setExpression("Length", "Params.pocket4_length")

# Sketch on an angled plane
sketch8 = doc.addObject("Sketcher::SketchObject", "Sketch007")
body.addObject(sketch8)
sketch8.Placement = App.Placement(V(0.5, 0, 0.866025), App.Rotation(V(0.866025404, 0, -0.5), V(0, 1, 0), V(0.5, 0, 0.866025404), "ZXY"))
sketch8.addGeometry([
    Part.LineSegment(V(71, -9, 0), V(69, -10.5, 0)),
    Part.LineSegment(V(69, -10.5, 0), V(71, -10.5, 0)),
    Part.LineSegment(V(71, -10.5, 0), V(71, -9, 0)),
], False)
sketch8.addConstraint([
    Sketcher.Constraint("Coincident", 0, 2, 1, 1),
    Sketcher.Constraint("Coincident", 1, 2, 2, 1),
    Sketcher.Constraint("Coincident", 2, 2, 0, 1),
    Sketcher.Constraint("Horizontal", 1),
    Sketcher.Constraint("Vertical", 2),
    Sketcher.Constraint("DistanceX", 1, 1, 1, 2, Q("2 mm")),
    Sketcher.Constraint("DistanceY", 2, 1, 2, 2, Q("1.5 mm")),
    Sketcher.Constraint("DistanceX", -1, 1, 0, 2, Q("69 mm")),
    Sketcher.Constraint("DistanceY", 2, 2, -1, 1, Q("9 mm")),
])
sketch8.setExpression("Constraints[5]", "Params.sketch8_width")
sketch8.setExpression("Constraints[6]", "Params.sketch8_height")
pocket5 = doc.addObject("PartDesign::Pocket", "Pocket004")
body.addObject(pocket5)
pocket5.Profile = sketch8
pocket5.setExpression("Length", "Params.pocket5_length")

# Sketch on an angled plane
sketch9 = doc.addObject("Sketcher::SketchObject", "Sketch008")
body.addObject(sketch9)
sketch9.Placement = App.Placement(V(-0.5, 0, 0.866025), App.Rotation(V(0.866025404, 0, 0.5), V(0, 1, 0), V(-0.5, 0, 0.866025404), "ZXY"))
sketch9.addGeometry([
    Part.LineSegment(V(71, -9, 0), V(69, -10.5, 0)),
    Part.LineSegment(V(69, -10.5, 0), V(71, -10.5, 0)),
    Part.LineSegment(V(71, -10.5, 0), V(71, -9, 0)),
], False)
sketch9.addConstraint([
    Sketcher.Constraint("Coincident", 0, 2, 1, 1),
    Sketcher.Constraint("Coincident", 1, 2, 2, 1),
    Sketcher.Constraint("Coincident", 2, 2, 0, 1),
    Sketcher.Constraint("Horizontal", 1),
    Sketcher.Constraint("Vertical", 2),
    Sketcher.Constraint("DistanceX", 1, 1, 1, 2, Q("2 mm")),
    Sketcher.Constraint("DistanceY", 2, 1, 2, 2, Q("1.5 mm")),
    Sketcher.Constraint("DistanceX", -1, 1, 0, 2, Q("69 mm")),
    Sketcher.Constraint("DistanceY", 2, 2, -1, 1, Q("9 mm")),
])
sketch9.setExpression("Constraints[5]", "Params.sketch9_width")
sketch9.setExpression("Constraints[6]", "Params.sketch9_height")
pocket6 = doc.addObject("PartDesign::Pocket", "Pocket005")
body.addObject(pocket6)
pocket6.Profile = sketch9
pocket6.setExpression("Length", "Params.pocket6_length")

# Sketch on YZ plane
sketch10 = doc.addObject("Sketcher::SketchObject", "Sketch009")
body.addObject(sketch10)
sketch10.AttachmentSupport = (doc.YZ_Plane, [""])
sketch10.MapMode = "FlatFace"
sketch10.AttachmentOffset = App.Placement(V(0, 0, -1), App.Rotation())
sketch10.addGeometry([
    Part.LineSegment(V(-9, 71, 0), V(-10.5, 69, 0)),
    Part.LineSegment(V(-10.5, 69, 0), V(-10.5, 71, 0)),
    Part.LineSegment(V(-10.5, 71, 0), V(-9, 71, 0)),
], False)
sketch10.addConstraint([
    Sketcher.Constraint("Coincident", 0, 2, 1, 1),
    Sketcher.Constraint("Coincident", 1, 2, 2, 1),
    Sketcher.Constraint("Coincident", 2, 2, 0, 1),
    Sketcher.Constraint("Vertical", 1),
    Sketcher.Constraint("Horizontal", 2),
    Sketcher.Constraint("DistanceY", 1, 1, 1, 2, Q("2 mm")),
    Sketcher.Constraint("DistanceX", 2, 1, 2, 2, Q("1.5 mm")),
    Sketcher.Constraint("DistanceY", -1, 1, 0, 2, Q("69 mm")),
    Sketcher.Constraint("DistanceX", 2, 2, -1, 1, Q("9 mm")),
])
sketch10.setExpression("Constraints[5]", "Params.sketch10_height")
sketch10.setExpression("Constraints[6]", "Params.sketch10_width")
pocket7 = doc.addObject("PartDesign::Pocket", "Pocket006")
body.addObject(pocket7)
pocket7.Profile = sketch10
pocket7.setExpression("Length", "Params.pocket7_length")
pocket7.Reversed = True

# Sketch on an angled plane
sketch11 = doc.addObject("Sketcher::SketchObject", "Sketch010")
body.addObject(sketch11)
sketch11.Placement = App.Placement(V(-0.5, 0, -0.866025), App.Rotation(V(-0.866025404, 0, 0.5), V(0, 1, 0), V(-0.5, 0, -0.866025404), "ZXY"))
sketch11.addGeometry([
    Part.LineSegment(V(71, -9, 0), V(69, -10.5, 0)),
    Part.LineSegment(V(69, -10.5, 0), V(71, -10.5, 0)),
    Part.LineSegment(V(71, -10.5, 0), V(71, -9, 0)),
], False)
sketch11.addConstraint([
    Sketcher.Constraint("Coincident", 0, 2, 1, 1),
    Sketcher.Constraint("Coincident", 1, 2, 2, 1),
    Sketcher.Constraint("Coincident", 2, 2, 0, 1),
    Sketcher.Constraint("Horizontal", 1),
    Sketcher.Constraint("Vertical", 2),
    Sketcher.Constraint("DistanceX", 1, 1, 1, 2, Q("2 mm")),
    Sketcher.Constraint("DistanceY", 2, 1, 2, 2, Q("1.5 mm")),
    Sketcher.Constraint("DistanceX", -1, 1, 0, 2, Q("69 mm")),
    Sketcher.Constraint("DistanceY", 2, 2, -1, 1, Q("9 mm")),
])
sketch11.setExpression("Constraints[5]", "Params.sketch11_width")
sketch11.setExpression("Constraints[6]", "Params.sketch11_height")
pocket8 = doc.addObject("PartDesign::Pocket", "Pocket007")
body.addObject(pocket8)
pocket8.Profile = sketch11
pocket8.setExpression("Length", "Params.pocket8_length")

# Sketch on an angled plane
sketch12 = doc.addObject("Sketcher::SketchObject", "Sketch011")
body.addObject(sketch12)
sketch12.Placement = App.Placement(V(0.5, 0, -0.866025), App.Rotation(V(-0.866025404, 0, -0.5), V(0, 1, 0), V(0.5, 0, -0.866025404), "ZXY"))
sketch12.addGeometry([
    Part.LineSegment(V(71, -9, 0), V(69, -10.5, 0)),
    Part.LineSegment(V(69, -10.5, 0), V(71, -10.5, 0)),
    Part.LineSegment(V(71, -10.5, 0), V(71, -9, 0)),
], False)
sketch12.addConstraint([
    Sketcher.Constraint("Coincident", 0, 2, 1, 1),
    Sketcher.Constraint("Coincident", 1, 2, 2, 1),
    Sketcher.Constraint("Coincident", 2, 2, 0, 1),
    Sketcher.Constraint("Horizontal", 1),
    Sketcher.Constraint("Vertical", 2),
    Sketcher.Constraint("DistanceX", 1, 1, 1, 2, Q("2 mm")),
    Sketcher.Constraint("DistanceY", 2, 1, 2, 2, Q("1.5 mm")),
    Sketcher.Constraint("DistanceX", -1, 1, 0, 2, Q("69 mm")),
    Sketcher.Constraint("DistanceY", 2, 2, -1, 1, Q("9 mm")),
])
sketch12.setExpression("Constraints[5]", "Params.sketch12_width")
sketch12.setExpression("Constraints[6]", "Params.sketch12_height")
pocket9 = doc.addObject("PartDesign::Pocket", "Pocket008")
body.addObject(pocket9)
pocket9.Profile = sketch12
pocket9.setExpression("Length", "Params.pocket9_length")

doc.recompute()
